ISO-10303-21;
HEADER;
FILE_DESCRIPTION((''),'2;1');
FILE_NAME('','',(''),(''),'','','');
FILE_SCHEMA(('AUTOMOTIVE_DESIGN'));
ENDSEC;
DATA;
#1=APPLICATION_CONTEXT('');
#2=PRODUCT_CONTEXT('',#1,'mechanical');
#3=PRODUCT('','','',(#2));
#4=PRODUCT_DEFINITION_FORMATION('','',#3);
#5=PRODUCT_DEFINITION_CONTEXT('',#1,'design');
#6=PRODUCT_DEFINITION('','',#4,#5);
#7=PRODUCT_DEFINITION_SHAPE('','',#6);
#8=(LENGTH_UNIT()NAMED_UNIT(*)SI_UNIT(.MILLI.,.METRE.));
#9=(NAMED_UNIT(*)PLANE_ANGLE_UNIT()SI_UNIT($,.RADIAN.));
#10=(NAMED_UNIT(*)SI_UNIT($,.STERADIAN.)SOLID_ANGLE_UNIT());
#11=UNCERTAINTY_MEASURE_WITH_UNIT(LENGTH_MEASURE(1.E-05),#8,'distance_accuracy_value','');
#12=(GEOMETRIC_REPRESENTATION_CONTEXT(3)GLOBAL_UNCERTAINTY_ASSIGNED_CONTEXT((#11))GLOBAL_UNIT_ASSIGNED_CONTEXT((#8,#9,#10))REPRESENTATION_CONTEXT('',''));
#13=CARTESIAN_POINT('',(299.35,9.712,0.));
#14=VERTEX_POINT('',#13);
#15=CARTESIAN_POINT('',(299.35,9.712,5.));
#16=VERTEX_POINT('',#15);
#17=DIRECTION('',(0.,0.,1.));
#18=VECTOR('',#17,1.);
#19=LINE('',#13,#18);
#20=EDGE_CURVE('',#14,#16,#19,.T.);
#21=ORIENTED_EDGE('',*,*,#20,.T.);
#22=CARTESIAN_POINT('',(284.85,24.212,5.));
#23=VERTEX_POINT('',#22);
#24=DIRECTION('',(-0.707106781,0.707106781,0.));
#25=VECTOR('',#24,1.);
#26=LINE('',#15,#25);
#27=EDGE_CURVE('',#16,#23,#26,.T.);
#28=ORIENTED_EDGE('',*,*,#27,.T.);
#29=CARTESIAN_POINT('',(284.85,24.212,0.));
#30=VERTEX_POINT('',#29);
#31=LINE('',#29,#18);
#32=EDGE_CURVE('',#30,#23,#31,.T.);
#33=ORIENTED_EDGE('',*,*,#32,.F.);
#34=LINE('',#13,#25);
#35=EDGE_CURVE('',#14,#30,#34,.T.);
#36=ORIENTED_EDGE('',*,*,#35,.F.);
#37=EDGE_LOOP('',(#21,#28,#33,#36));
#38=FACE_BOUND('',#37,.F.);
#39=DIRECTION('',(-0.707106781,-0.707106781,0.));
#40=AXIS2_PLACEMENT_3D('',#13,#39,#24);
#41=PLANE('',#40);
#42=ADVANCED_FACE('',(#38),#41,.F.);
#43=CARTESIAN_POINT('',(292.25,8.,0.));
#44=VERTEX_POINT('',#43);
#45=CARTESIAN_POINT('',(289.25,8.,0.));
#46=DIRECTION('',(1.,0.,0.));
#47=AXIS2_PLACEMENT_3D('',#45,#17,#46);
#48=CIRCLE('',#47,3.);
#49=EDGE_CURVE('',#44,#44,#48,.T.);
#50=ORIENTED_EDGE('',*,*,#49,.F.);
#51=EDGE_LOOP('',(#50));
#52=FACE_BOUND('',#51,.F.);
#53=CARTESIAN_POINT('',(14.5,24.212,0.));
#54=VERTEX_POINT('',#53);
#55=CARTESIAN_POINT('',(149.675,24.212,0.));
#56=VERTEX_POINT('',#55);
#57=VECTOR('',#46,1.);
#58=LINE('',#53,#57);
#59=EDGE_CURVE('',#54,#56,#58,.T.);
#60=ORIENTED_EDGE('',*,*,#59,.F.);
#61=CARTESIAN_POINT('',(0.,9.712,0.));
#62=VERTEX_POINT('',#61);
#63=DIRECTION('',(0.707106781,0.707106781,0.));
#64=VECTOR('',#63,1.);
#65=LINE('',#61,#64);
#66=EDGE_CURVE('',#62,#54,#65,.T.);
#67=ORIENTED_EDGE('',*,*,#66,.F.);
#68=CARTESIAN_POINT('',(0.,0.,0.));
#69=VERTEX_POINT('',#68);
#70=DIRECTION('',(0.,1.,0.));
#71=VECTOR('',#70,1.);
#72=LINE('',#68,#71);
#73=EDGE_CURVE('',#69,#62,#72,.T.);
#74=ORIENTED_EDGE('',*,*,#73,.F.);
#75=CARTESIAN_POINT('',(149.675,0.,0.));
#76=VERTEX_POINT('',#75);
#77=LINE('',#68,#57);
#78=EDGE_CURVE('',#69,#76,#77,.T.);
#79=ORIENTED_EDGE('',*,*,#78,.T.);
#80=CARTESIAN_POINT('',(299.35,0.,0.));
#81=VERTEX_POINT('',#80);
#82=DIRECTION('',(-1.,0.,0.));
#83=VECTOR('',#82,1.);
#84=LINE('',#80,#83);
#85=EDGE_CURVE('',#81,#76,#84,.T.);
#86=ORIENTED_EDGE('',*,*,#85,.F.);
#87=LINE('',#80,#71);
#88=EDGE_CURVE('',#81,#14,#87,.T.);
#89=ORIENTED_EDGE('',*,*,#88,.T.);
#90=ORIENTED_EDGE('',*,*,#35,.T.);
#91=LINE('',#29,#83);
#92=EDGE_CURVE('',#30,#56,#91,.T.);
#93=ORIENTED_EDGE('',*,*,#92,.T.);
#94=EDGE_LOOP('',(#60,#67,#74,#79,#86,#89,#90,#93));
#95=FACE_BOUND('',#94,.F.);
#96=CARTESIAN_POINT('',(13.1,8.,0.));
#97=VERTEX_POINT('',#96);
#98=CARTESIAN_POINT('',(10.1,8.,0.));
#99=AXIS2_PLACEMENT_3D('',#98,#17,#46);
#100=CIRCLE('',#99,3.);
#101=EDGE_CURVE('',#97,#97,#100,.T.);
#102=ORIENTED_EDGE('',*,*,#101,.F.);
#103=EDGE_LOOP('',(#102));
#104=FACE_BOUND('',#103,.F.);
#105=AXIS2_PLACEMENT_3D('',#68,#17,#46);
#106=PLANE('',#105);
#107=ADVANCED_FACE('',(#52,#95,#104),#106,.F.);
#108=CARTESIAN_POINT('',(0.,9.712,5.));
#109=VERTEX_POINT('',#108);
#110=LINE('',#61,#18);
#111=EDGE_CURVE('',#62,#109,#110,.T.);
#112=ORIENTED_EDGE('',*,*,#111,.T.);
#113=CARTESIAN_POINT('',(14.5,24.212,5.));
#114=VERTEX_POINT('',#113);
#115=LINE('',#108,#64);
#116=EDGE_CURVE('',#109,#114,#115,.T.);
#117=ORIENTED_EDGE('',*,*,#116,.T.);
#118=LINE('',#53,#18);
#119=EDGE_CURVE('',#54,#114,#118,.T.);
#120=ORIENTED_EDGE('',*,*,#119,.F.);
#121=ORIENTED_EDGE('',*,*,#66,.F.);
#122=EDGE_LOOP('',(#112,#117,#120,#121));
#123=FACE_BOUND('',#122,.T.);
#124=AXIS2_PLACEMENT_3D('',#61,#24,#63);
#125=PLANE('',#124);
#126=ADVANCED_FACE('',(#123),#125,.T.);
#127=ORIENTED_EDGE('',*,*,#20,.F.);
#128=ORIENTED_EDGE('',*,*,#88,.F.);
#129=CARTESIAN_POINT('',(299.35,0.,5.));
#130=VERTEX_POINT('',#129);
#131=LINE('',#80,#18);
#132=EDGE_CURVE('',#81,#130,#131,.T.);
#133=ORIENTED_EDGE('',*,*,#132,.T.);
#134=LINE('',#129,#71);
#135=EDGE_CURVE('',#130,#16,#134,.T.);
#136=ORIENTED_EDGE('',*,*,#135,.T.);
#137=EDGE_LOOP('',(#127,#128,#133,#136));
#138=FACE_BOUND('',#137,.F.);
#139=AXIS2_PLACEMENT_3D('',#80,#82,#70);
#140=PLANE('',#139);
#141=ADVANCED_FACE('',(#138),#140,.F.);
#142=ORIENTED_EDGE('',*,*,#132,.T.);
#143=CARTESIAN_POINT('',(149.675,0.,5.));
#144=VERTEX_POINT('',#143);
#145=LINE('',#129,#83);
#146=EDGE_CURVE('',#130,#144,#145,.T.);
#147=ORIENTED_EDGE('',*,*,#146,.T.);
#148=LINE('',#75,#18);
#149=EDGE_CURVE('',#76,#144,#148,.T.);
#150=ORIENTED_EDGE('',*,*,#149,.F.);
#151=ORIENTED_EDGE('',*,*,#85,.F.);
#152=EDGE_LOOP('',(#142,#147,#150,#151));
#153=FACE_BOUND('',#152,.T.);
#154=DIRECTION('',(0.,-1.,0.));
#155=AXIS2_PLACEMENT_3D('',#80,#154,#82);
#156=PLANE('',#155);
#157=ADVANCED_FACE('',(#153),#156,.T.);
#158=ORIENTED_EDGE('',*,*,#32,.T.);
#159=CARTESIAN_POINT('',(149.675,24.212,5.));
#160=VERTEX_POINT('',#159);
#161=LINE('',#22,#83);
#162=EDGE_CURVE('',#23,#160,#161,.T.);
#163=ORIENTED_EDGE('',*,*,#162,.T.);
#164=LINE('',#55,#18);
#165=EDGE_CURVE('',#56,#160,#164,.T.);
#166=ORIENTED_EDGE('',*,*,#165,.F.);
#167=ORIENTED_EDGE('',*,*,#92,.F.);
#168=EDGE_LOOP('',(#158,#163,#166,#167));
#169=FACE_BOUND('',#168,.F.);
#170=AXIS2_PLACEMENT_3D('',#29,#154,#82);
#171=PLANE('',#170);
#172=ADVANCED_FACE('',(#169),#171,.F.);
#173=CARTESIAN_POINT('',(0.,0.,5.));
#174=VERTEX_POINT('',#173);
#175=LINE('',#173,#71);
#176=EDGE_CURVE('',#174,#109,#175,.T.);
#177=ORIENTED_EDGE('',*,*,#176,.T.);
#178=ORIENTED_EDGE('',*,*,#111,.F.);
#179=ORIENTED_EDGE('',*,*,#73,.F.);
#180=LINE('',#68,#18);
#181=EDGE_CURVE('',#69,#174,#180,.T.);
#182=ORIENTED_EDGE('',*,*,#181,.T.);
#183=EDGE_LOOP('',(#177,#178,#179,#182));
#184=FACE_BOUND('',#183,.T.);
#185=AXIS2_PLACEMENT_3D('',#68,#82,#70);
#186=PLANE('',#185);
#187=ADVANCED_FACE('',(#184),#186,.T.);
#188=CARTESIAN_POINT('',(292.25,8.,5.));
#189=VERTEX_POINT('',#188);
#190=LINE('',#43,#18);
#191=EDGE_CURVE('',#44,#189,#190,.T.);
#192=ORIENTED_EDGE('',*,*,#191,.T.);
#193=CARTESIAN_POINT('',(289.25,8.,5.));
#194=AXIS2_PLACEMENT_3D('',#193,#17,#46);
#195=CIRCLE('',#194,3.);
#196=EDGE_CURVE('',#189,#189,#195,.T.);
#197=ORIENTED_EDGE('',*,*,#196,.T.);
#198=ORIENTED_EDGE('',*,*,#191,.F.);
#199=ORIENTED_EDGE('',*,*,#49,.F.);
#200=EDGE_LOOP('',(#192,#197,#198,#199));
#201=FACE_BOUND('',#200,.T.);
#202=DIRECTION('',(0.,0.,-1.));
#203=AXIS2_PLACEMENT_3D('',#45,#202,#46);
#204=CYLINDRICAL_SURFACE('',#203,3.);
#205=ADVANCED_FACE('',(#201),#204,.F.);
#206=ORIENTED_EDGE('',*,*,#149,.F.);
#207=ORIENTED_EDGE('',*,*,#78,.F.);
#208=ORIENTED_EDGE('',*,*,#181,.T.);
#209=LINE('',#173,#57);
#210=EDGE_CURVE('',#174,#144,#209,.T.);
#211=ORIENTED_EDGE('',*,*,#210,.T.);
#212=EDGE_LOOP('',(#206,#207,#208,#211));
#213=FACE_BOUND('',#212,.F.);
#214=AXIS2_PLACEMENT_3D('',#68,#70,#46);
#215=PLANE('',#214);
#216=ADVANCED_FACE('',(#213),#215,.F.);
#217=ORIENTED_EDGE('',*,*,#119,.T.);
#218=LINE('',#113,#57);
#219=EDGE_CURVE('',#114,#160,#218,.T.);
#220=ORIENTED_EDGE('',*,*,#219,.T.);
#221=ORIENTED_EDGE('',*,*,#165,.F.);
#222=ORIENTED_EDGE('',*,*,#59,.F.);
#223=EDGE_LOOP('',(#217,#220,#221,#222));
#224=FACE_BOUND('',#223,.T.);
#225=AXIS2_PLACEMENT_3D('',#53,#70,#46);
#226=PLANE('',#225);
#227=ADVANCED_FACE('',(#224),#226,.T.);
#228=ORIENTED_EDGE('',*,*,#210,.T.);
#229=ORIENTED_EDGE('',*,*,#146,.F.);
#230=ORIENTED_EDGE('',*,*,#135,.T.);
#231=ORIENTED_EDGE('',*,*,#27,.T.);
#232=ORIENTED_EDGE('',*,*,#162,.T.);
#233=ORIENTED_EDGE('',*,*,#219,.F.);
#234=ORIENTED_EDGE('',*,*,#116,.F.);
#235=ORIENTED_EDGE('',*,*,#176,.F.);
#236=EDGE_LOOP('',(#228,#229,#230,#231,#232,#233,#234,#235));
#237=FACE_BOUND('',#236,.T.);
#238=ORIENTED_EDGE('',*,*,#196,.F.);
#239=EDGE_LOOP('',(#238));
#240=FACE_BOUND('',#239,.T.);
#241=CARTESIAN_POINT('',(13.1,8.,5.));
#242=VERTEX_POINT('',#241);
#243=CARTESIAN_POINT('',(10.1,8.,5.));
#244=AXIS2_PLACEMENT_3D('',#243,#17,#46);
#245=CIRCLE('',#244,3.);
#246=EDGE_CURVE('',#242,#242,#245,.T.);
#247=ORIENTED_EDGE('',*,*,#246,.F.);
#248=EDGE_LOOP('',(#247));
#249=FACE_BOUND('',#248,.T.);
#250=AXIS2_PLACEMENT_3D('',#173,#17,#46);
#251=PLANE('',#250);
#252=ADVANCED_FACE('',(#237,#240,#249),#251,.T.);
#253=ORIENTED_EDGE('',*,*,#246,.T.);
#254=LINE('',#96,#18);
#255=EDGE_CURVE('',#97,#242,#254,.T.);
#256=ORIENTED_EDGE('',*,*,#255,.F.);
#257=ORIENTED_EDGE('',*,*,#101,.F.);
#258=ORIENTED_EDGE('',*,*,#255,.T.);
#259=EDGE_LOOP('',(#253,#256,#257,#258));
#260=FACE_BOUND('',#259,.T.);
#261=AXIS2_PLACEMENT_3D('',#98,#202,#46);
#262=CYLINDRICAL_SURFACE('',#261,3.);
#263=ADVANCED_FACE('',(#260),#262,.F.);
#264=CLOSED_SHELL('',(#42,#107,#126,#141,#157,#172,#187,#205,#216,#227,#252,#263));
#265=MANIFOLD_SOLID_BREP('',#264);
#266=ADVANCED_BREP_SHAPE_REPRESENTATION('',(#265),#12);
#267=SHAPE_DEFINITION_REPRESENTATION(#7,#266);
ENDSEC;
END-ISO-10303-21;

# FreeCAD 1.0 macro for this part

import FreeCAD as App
import Part
import Sketcher
Q = App.Units.Quantity

doc = App.newDocument("Part")
body = doc.addObject("PartDesign::Body", "Body")

# Sketch on XY plane
sketch1 = body.newObject("Sketcher::SketchObject", "Sketch")
sketch1.AttachmentSupport = (doc.getObject("XY_Plane"), [""])
sketch1.MapMode = "FlatFace"
sketch1.addGeometry([
    Part.LineSegment(App.Vector(0, 9.7, 0), App.Vector(0, 0, 0)),  # 0
    Part.LineSegment(App.Vector(0, 0, 0), App.Vector(299.4, 0, 0)),  # 1
    Part.LineSegment(App.Vector(299.4, 0, 0), App.Vector(299.4, 9.7, 0)),  # 2
    Part.LineSegment(App.Vector(299.4, 9.7, 0), App.Vector(284.9, 24.2, 0)),  # 3
    Part.LineSegment(App.Vector(284.9, 24.2, 0), App.Vector(14.5, 24.2, 0)),  # 4
    Part.LineSegment(App.Vector(14.5, 24.2, 0), App.Vector(0, 9.7, 0)),  # 5
    Part.Circle(App.Vector(10.1, 8, 0), App.Vector(0, 0, 1), 3),  # 6
    Part.Circle(App.Vector(289.2, 8, 0), App.Vector(0, 0, 1), 3),  # 7
], False)
sketch1.addConstraint([
    Sketcher.Constraint("Coincident", 0, 2, 1, 1),
    Sketcher.Constraint("Coincident", 1, 2, 2, 1),
    Sketcher.Constraint("Coincident", 2, 2, 3, 1),
    Sketcher.Constraint("Coincident", 3, 2, 4, 1),
    Sketcher.Constraint("Coincident", 4, 2, 5, 1),
    Sketcher.Constraint("Coincident", 5, 2, 0, 1),
    Sketcher.Constraint("Vertical", 0),
    Sketcher.Constraint("Horizontal", 1),
    Sketcher.Constraint("Vertical", 2),
    Sketcher.Constraint("Horizontal", 4),
    Sketcher.Constraint("Coincident", 0, 2, -1, 1),
    Sketcher.Constraint("Equal", 6, 7),
    Sketcher.Constraint("Perpendicular", 3, 5),
    Sketcher.Constraint("Horizontal", 6, 3, 7, 3),
    Sketcher.Constraint("Horizontal", 2, 2, 5, 2),
    Sketcher.Constraint("Equal", 3, 5),
    Sketcher.Constraint("Diameter", 6, Q("6 mm")),
    Sketcher.Constraint("DistanceY", -1, 1, 6, 3, Q("8 mm")),
    Sketcher.Constraint("DistanceX", -1, 1, 6, 3, Q("10.1 mm")),
    Sketcher.Constraint("DistanceX", 7, 3, 1, 2, Q("10.1 mm")),
    Sketcher.Constraint("DistanceY", 0, 2, 0, 1, Q("9.712 mm")),
    Sketcher.Constraint("DistanceY", -1, 1, 3, 2, Q("24.212 mm")),
    Sketcher.Constraint("DistanceX", 1, 1, 1, 2, Q("299.35 mm")),
])
pad1 = body.newObject("PartDesign::Pad", "Pad")
pad1.Profile = sketch1
pad1.Length = 5

doc.recompute()
